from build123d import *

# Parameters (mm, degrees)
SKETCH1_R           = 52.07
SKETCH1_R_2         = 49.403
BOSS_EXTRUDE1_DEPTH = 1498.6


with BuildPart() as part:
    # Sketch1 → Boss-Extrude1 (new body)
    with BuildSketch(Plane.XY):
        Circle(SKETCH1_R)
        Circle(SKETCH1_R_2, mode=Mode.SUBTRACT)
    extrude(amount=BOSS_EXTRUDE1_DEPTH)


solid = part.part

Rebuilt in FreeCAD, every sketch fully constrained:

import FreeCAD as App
import Part
import Sketcher
from FreeCAD import Vector
Q = App.Units.Quantity

doc = App.newDocument("Part")
params = doc.addObject("Spreadsheet::Sheet", "Params")
for row, (alias, value) in enumerate([
    ("sketch1_diameter", "4.1 in"),
    ("sketch1_diameter2", "3.89 in"),
    ("pad1_length", "59 in"),
], start=1):
    params.set(f"A{row}", alias)
    params.set(f"B{row}", "=" + value)
    params.setAlias(f"B{row}", alias)

body = doc.addObject("PartDesign::Body", "Body")

# Sketch on XY plane
sketch1 = body.newObject("Sketcher::SketchObject", "Sketch")
sketch1.AttachmentSupport = (doc.getObject("XY_Plane"), [""])
sketch1.MapMode = "FlatFace"
sketch1.addGeometry(Part.Circle(Vector(0, 0, 0), Vector(0, 0, 1), 52), False)
sketch1.addGeometry(Part.Circle(Vector(0, 0, 0), Vector(0, 0, 1), 49), False)
sketch1.addConstraint(Sketcher.Constraint("Coincident", 0, 3, -1, 1))
sketch1.addConstraint(Sketcher.Constraint("Coincident", 1, 3, -1, 1))
sketch1.addConstraint(Sketcher.Constraint("Diameter", 0, Q("4.1 in")))
sketch1.addConstraint(Sketcher.Constraint("Diameter", 1, Q("3.89 in")))
sketch1.setExpression("Constraints[2]", "Params.sketch1_diameter")
sketch1.setExpression("Constraints[3]", "Params.sketch1_diameter2")
pad1 = body.newObject("PartDesign::Pad", "Pad")
pad1.Profile = sketch1
pad1.setExpression("Length", "Params.pad1_length")

doc.recompute()
